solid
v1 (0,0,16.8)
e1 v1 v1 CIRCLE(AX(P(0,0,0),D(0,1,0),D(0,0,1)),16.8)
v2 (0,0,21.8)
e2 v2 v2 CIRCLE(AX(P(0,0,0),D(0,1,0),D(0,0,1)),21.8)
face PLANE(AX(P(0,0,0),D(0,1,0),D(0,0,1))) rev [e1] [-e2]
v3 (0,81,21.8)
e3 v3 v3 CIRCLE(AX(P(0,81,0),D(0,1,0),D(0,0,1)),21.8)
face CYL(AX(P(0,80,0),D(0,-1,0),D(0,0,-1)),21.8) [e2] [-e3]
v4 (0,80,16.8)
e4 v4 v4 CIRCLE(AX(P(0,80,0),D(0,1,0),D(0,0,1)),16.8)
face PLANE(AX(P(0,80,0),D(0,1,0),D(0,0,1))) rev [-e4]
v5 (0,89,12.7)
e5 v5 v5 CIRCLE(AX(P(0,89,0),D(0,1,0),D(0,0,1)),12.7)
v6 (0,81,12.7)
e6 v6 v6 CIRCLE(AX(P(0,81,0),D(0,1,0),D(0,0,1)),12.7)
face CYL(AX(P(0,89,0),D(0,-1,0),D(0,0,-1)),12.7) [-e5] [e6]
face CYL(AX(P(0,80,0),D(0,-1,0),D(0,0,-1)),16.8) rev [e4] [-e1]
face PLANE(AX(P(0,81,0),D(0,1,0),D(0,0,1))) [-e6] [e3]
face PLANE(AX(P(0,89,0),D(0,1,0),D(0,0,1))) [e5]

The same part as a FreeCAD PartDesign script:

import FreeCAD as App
import Part
import Sketcher
Q = App.Units.Quantity

doc = App.newDocument("Part")
body = doc.addObject("PartDesign::Body", "Body")

# Sketch on XZ plane
sketch1 = body.newObject("Sketcher::SketchObject", "Sketch")
sketch1.AttachmentSupport = (doc.getObject("XZ_Plane"), [""])
sketch1.MapMode = "FlatFace"
sketch1.addGeometry([
    Part.Circle(App.Vector(0, 0, 0), App.Vector(0, 0, 1), 22),
    Part.Circle(App.Vector(0, 0, 0), App.Vector(0, 0, 1), 17),
], False)
sketch1.addConstraint([
    Sketcher.Constraint("Coincident", 0, 3, -1, 1),
    Sketcher.Constraint("Coincident", 1, 3, -1, 1),
    Sketcher.Constraint("Diameter", 0, Q("43.6 mm")),
    Sketcher.Constraint("Diameter", 1, Q("33.6 mm")),
])
pad1 = body.newObject("PartDesign::Pad", "Pad")
pad1.Profile = sketch1
pad1.Length = 80
pad1.Reversed = True

# Sketch on XZ plane
sketch2 = body.newObject("Sketcher::SketchObject", "Sketch001")
sketch2.AttachmentSupport = (doc.getObject("XZ_Plane"), [""])
sketch2.MapMode = "FlatFace"
sketch2.AttachmentOffset = App.Placement(App.Vector(0, 0, -80), App.Rotation())
sketch2.addGeometry(Part.Circle(App.Vector(0, 0, 0), App.Vector(0, 0, 1), 22), False)
sketch2.addConstraint([
    Sketcher.Constraint("Coincident", 0, 3, -1, 1),
    Sketcher.Constraint("Diameter", 0, Q("43.6 mm")),
])
pad2 = body.newObject("PartDesign::Pad", "Pad001")
pad2.Profile = sketch2
pad2.Length = 1
pad2.Reversed = True

# Sketch on XZ plane
sketch3 = body.newObject("Sketcher::SketchObject", "Sketch002")
sketch3.AttachmentSupport = (doc.getObject("XZ_Plane"), [""])
sketch3.MapMode = "FlatFace"
sketch3.AttachmentOffset = App.Placement(App.Vector(0, 0, -81), App.Rotation())
sketch3.addGeometry(Part.Circle(App.Vector(0, 0, 0), App.Vector(0, 0, 1), 13), False)
sketch3.addConstraint([
    Sketcher.Constraint("Coincident", 0, 3, -1, 1),
    Sketcher.Constraint("Diameter", 0, Q("25.4 mm")),
])
pad3 = body.newObject("PartDesign::Pad", "Pad002")
pad3.Profile = sketch3
pad3.Length = 8
pad3.Reversed = True

doc.recompute()
